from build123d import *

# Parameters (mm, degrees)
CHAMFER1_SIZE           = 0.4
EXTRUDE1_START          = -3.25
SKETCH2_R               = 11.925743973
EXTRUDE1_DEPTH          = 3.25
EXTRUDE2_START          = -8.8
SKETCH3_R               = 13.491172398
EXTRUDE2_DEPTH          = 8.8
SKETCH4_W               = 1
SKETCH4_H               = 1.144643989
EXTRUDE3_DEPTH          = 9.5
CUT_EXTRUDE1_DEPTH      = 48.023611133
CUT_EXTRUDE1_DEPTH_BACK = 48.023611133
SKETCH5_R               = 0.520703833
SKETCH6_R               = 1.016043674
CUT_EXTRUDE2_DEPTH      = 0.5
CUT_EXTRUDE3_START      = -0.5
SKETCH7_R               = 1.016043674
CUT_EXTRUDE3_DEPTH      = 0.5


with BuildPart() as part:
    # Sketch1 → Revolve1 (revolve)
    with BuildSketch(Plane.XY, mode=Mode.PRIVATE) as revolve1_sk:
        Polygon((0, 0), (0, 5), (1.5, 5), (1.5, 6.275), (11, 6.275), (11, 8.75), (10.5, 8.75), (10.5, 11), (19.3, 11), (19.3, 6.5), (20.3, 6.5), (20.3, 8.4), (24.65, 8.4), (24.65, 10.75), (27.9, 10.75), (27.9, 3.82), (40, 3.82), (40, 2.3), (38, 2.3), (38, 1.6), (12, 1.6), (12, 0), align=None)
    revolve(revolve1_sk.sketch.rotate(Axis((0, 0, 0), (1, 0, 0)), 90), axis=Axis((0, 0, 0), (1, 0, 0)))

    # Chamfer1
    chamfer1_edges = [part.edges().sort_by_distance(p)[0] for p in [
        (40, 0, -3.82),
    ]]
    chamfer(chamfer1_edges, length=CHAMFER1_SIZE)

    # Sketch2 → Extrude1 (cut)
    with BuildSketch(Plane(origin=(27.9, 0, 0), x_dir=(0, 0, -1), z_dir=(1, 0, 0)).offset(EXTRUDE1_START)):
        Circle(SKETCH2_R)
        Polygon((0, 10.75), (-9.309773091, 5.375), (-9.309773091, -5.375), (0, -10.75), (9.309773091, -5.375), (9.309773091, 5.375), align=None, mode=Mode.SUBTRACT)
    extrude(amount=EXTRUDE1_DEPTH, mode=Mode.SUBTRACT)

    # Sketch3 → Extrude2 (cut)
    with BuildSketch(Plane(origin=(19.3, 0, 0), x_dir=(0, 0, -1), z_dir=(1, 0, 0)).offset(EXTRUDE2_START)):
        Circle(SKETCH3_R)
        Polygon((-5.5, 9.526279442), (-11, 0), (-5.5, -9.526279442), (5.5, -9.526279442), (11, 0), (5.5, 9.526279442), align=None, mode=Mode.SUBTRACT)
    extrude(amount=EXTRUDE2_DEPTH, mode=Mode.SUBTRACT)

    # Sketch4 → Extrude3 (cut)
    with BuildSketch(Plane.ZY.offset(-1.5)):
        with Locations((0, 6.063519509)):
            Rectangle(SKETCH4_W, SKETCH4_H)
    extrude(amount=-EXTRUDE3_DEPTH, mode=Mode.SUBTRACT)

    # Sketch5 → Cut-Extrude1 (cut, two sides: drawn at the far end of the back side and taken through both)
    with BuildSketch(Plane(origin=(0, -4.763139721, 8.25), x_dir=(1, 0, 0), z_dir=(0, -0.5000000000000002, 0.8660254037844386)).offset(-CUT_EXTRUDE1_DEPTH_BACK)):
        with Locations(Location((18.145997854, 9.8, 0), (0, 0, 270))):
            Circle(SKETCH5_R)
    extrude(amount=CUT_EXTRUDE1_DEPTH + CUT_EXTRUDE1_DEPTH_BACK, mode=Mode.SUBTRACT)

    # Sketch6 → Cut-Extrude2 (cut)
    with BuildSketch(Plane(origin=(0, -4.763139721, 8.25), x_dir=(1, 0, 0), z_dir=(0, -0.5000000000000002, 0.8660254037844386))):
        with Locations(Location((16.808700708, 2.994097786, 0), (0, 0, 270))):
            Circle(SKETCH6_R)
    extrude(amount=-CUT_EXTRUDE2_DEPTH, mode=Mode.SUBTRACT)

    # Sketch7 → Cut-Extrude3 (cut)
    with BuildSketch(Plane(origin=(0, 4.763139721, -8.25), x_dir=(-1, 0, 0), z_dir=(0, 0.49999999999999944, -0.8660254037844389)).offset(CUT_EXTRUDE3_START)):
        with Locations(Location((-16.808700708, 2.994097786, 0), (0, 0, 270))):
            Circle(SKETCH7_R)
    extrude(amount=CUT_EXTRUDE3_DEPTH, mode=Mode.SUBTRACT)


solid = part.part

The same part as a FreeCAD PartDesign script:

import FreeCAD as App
import Part
import Sketcher
Q = App.Units.Quantity


def edges_at(feature, points):
    """Names of the edges that pass closest to the given points."""
    edges = feature.Shape.Edges
    near = lambda p: min(range(len(edges)), key=lambda i: edges[i].distToShape(Part.Vertex(*p))[0])
    return sorted({f"Edge{near(p) + 1}" for p in points})

doc = App.newDocument("Part")
params = doc.addObject("Spreadsheet::Sheet", "Params")
for row, (alias, value) in enumerate([
    ("sketch1_width", "12 mm"),
    ("sketch1_width2", "26 mm"),
    ("sketch1_width3", "2 mm"),
    ("sketch1_width4", "1 mm"),
    ("sketch1_height", "5 mm"),
    ("revolution_angle", "360 deg"),
    ("chamfer_size", "0.4 mm"),
    ("sketch2_width", "10.75 mm"),
    ("pocket1_length", "3.25 mm"),
    ("sketch3_height", "11 mm"),
    ("sketch3_length", "11 mm"),
    ("pocket2_length", "8.8 mm"),
    ("sketch4_height", "1 mm"),
    ("pocket3_length", "9.5 mm"),
    ("pocket5_length", "0.5 mm"),
    ("pocket6_length", "0.5 mm"),
], start=1):
    params.set(f"A{row}", alias)
    params.set(f"B{row}", "=" + value)
    params.setAlias(f"B{row}", alias)

body = doc.addObject("PartDesign::Body", "Body")

# Sketch on XY plane
sketch1 = body.newObject("Sketcher::SketchObject", "Sketch")
sketch1.AttachmentSupport = (doc.getObject("XY_Plane"), [""])
sketch1.MapMode = "FlatFace"
sketch1.addGeometry([
    Part.LineSegment(App.Vector(0, 5, 0), App.Vector(0, 0, 0)),  # 0
    Part.LineSegment(App.Vector(0, 0, 0), App.Vector(12, 0, 0)),  # 1
    Part.LineSegment(App.Vector(12, 0, 0), App.Vector(12, 1.6, 0)),  # 2
    Part.LineSegment(App.Vector(12, 1.6, 0), App.Vector(38, 1.6, 0)),  # 3
    Part.LineSegment(App.Vector(38, 1.6, 0), App.Vector(38, 2.3, 0)),  # 4
    Part.LineSegment(App.Vector(38, 2.3, 0), App.Vector(40, 2.3, 0)),  # 5
    Part.LineSegment(App.Vector(40, 2.3, 0), App.Vector(40, 3.8, 0)),  # 6
    Part.LineSegment(App.Vector(40, 3.8, 0), App.Vector(27.9, 3.8, 0)),  # 7
    Part.LineSegment(App.Vector(27.9, 3.8, 0), App.Vector(27.9, 10.8, 0)),  # 8
    Part.LineSegment(App.Vector(27.9, 10.8, 0), App.Vector(24.6, 10.8, 0)),  # 9
    Part.LineSegment(App.Vector(24.6, 10.8, 0), App.Vector(24.6, 8.4, 0)),  # 10
    Part.LineSegment(App.Vector(24.6, 8.4, 0), App.Vector(20.3, 8.4, 0)),  # 11
    Part.LineSegment(App.Vector(20.3, 8.4, 0), App.Vector(20.3, 6.5, 0)),  # 12
    Part.LineSegment(App.Vector(20.3, 6.5, 0), App.Vector(19.3, 6.5, 0)),  # 13
    Part.LineSegment(App.Vector(19.3, 6.5, 0), App.Vector(19.3, 11, 0)),  # 14
    Part.LineSegment(App.Vector(19.3, 11, 0), App.Vector(10.5, 11, 0)),  # 15
    Part.LineSegment(App.Vector(10.5, 11, 0), App.Vector(10.5, 8.8, 0)),  # 16
    Part.LineSegment(App.Vector(10.5, 8.8, 0), App.Vector(11, 8.8, 0)),  # 17
    Part.LineSegment(App.Vector(11, 8.8, 0), App.Vector(11, 6.3, 0)),  # 18
    Part.LineSegment(App.Vector(11, 6.3, 0), App.Vector(1.5, 6.3, 0)),  # 19
    Part.LineSegment(App.Vector(1.5, 6.3, 0), App.Vector(1.5, 5, 0)),  # 20
    Part.LineSegment(App.Vector(1.5, 5, 0), App.Vector(0, 5, 0)),  # 21
], False)
sketch1.addConstraint([
    Sketcher.Constraint("Coincident", 0, 2, 1, 1),
    Sketcher.Constraint("Coincident", 1, 2, 2, 1),
    Sketcher.Constraint("Coincident", 2, 2, 3, 1),
    Sketcher.Constraint("Coincident", 3, 2, 4, 1),
    Sketcher.Constraint("Coincident", 4, 2, 5, 1),
    Sketcher.Constraint("Coincident", 5, 2, 6, 1),
    Sketcher.Constraint("Coincident", 6, 2, 7, 1),
    Sketcher.Constraint("Coincident", 7, 2, 8, 1),
    Sketcher.Constraint("Coincident", 8, 2, 9, 1),
    Sketcher.Constraint("Coincident", 9, 2, 10, 1),
    Sketcher.Constraint("Coincident", 10, 2, 11, 1),
    Sketcher.Constraint("Coincident", 11, 2, 12, 1),
    Sketcher.Constraint("Coincident", 12, 2, 13, 1),
    Sketcher.Constraint("Coincident", 13, 2, 14, 1),
    Sketcher.Constraint("Coincident", 14, 2, 15, 1),
    Sketcher.Constraint("Coincident", 15, 2, 16, 1),
    Sketcher.Constraint("Coincident", 16, 2, 17, 1),
    Sketcher.Constraint("Coincident", 17, 2, 18, 1),
    Sketcher.Constraint("Coincident", 18, 2, 19, 1),
    Sketcher.Constraint("Coincident", 19, 2, 20, 1),
    Sketcher.Constraint("Coincident", 20, 2, 21, 1),
    Sketcher.Constraint("Coincident", 21, 2, 0, 1),
    Sketcher.Constraint("Vertical", 0),
    Sketcher.Constraint("Horizontal", 1),
    Sketcher.Constraint("Vertical", 2),
    Sketcher.Constraint("Horizontal", 3),
    Sketcher.Constraint("Vertical", 4),
    Sketcher.Constraint("Horizontal", 5),
    Sketcher.Constraint("Vertical", 6),
    Sketcher.Constraint("Horizontal", 7),
    Sketcher.Constraint("Vertical", 8),
    Sketcher.Constraint("Horizontal", 9),
    Sketcher.Constraint("Vertical", 10),
    Sketcher.Constraint("Horizontal", 11),
    Sketcher.Constraint("Vertical", 12),
    Sketcher.Constraint("Horizontal", 13),
    Sketcher.Constraint("Vertical", 14),
    Sketcher.Constraint("Horizontal", 15),
    Sketcher.Constraint("Vertical", 16),
    Sketcher.Constraint("Horizontal", 17),
    Sketcher.Constraint("Vertical", 18),
    Sketcher.Constraint("Horizontal", 19),
    Sketcher.Constraint("Vertical", 20),
    Sketcher.Constraint("Horizontal", 21),
    Sketcher.Constraint("Coincident", 0, 2, -1, 1),
    Sketcher.Constraint("DistanceX", 1, 1, 1, 2, Q("12 mm")),
    Sketcher.Constraint("DistanceX", 3, 1, 3, 2, Q("26 mm")),
    Sketcher.Constraint("DistanceX", 5, 1, 5, 2, Q("2 mm")),
    Sketcher.Constraint("DistanceX", 13, 2, 13, 1, Q("1 mm")),
    Sketcher.Constraint("DistanceY", 0, 2, 0, 1, Q("5 mm")),
    Sketcher.Constraint("DistanceX", 7, 2, 7, 1, Q("12.1 mm")),
    Sketcher.Constraint("DistanceX", 15, 2, 15, 1, Q("8.8 mm")),
    Sketcher.Constraint("DistanceX", 17, 1, 17, 2, Q("0.5 mm")),
    Sketcher.Constraint("DistanceX", 19, 2, 19, 1, Q("9.5 mm")),
    Sketcher.Constraint("DistanceX", 21, 2, 21, 1, Q("1.5 mm")),
    Sketcher.Constraint("DistanceY", 2, 1, 2, 2, Q("1.6 mm")),
    Sketcher.Constraint("DistanceY", 4, 1, 4, 2, Q("0.7 mm")),
    Sketcher.Constraint("DistanceY", 12, 2, 12, 1, Q("1.9 mm")),
    Sketcher.Constraint("DistanceY", 14, 1, 14, 2, Q("4.5 mm")),
    Sketcher.Constraint("DistanceY", -1, 1, 14, 2, Q("11 mm")),
    Sketcher.Constraint("DistanceX", 9, 2, 9, 1, Q("3.25 mm")),
    Sketcher.Constraint("DistanceY", 6, 1, 6, 2, Q("1.52 mm")),
    Sketcher.Constraint("DistanceY", 8, 1, 8, 2, Q("6.93 mm")),
    Sketcher.Constraint("DistanceY", 16, 2, 16, 1, Q("2.25 mm")),
    Sketcher.Constraint("DistanceY", 18, 2, 18, 1, Q("2.475 mm")),
])
sketch1.setExpression("Constraints[45]", "Params.sketch1_width")
sketch1.setExpression("Constraints[46]", "Params.sketch1_width2")
sketch1.setExpression("Constraints[47]", "Params.sketch1_width3")
sketch1.setExpression("Constraints[48]", "Params.sketch1_width4")
sketch1.setExpression("Constraints[49]", "Params.sketch1_height")
revolution = body.newObject("PartDesign::Revolution", "Revolution")
revolution.Profile = sketch1
revolution.ReferenceAxis = (sketch1, ["H_Axis"])
revolution.setExpression("Angle", "Params.revolution_angle")
doc.recompute()

chamfer = body.newObject("PartDesign::Chamfer", "Chamfer")
chamfer.Base = (revolution, edges_at(revolution, [(40, 0, -3.82)]))
chamfer.setExpression("Size", "Params.chamfer_size")

# Sketch on YZ plane
sketch2 = body.newObject("Sketcher::SketchObject", "Sketch001")
sketch2.AttachmentSupport = (doc.getObject("YZ_Plane"), [""])
sketch2.MapMode = "FlatFace"
sketch2.AttachmentOffset = App.Placement(App.Vector(0, 0, 24.65), App.Rotation())
sketch2.addGeometry([
    Part.Circle(App.Vector(0, 0, 0), App.Vector(0, 0, 1), 12),  # 0
    Part.LineSegment(App.Vector(5, 9, 0), App.Vector(11, 0, 0)),  # 1
    Part.LineSegment(App.Vector(11, 0, 0), App.Vector(5, -9, 0)),  # 2
    Part.LineSegment(App.Vector(5, -9, 0), App.Vector(-5, -9, 0)),  # 3
    Part.LineSegment(App.Vector(-5, -9, 0), App.Vector(-11, 0, 0)),  # 4
    Part.LineSegment(App.Vector(-11, 0, 0), App.Vector(-5, 9, 0)),  # 5
    Part.LineSegment(App.Vector(-5, 9, 0), App.Vector(5, 9, 0)),  # 6
], False)
sketch2.addConstraint([
    Sketcher.Constraint("Coincident", 1, 2, 2, 1),
    Sketcher.Constraint("Coincident", 2, 2, 3, 1),
    Sketcher.Constraint("Coincident", 3, 2, 4, 1),
    Sketcher.Constraint("Coincident", 4, 2, 5, 1),
    Sketcher.Constraint("Coincident", 5, 2, 6, 1),
    Sketcher.Constraint("Coincident", 6, 2, 1, 1),
    Sketcher.Constraint("Horizontal", 3),
    Sketcher.Constraint("Horizontal", 6),
    Sketcher.Constraint("Coincident", 0, 3, -1, 1),
    Sketcher.Constraint("Symmetric", 1, 2, 4, 2, -1, 1),
    Sketcher.Constraint("Symmetric", 2, 2, 5, 2, -1, 1),
    Sketcher.Constraint("PointOnObject", 1, 2, -1),
    Sketcher.Constraint("Parallel", 1, 4),
    Sketcher.Constraint("Vertical", 3, 2, 5, 2),
    Sketcher.Constraint("Angle", 1, Q("-60 deg")),
    Sketcher.Constraint("DistanceX", 3, 2, 3, 1, Q("10.75 mm")),
    Sketcher.Constraint("DistanceX", 4, 2, 1, 2, Q("21.5 mm")),
    Sketcher.Constraint("Diameter", 0, Q("23.851488 mm")),
])
sketch2.setExpression("Constraints[15]", "Params.sketch2_width")
pocket1 = body.newObject("PartDesign::Pocket", "Pocket")
pocket1.Profile = sketch2
pocket1.setExpression("Length", "Params.pocket1_length")
pocket1.Reversed = True

# Sketch on YZ plane
sketch3 = body.newObject("Sketcher::SketchObject", "Sketch002")
sketch3.AttachmentSupport = (doc.getObject("YZ_Plane"), [""])
sketch3.MapMode = "FlatFace"
sketch3.AttachmentOffset = App.Placement(App.Vector(0, 0, 10.5), App.Rotation())
sketch3.addGeometry([
    Part.Circle(App.Vector(0, 0, 0), App.Vector(0, 0, 1), 13),  # 0
    Part.LineSegment(App.Vector(0, 11, 0), App.Vector(10, 6, 0)),  # 1
    Part.LineSegment(App.Vector(10, 6, 0), App.Vector(10, -6, 0)),  # 2
    Part.LineSegment(App.Vector(10, -6, 0), App.Vector(0, -11, 0)),  # 3
    Part.LineSegment(App.Vector(0, -11, 0), App.Vector(-10, -6, 0)),  # 4
    Part.LineSegment(App.Vector(-10, -6, 0), App.Vector(-10, 6, 0)),  # 5
    Part.LineSegment(App.Vector(-10, 6, 0), App.Vector(0, 11, 0)),  # 6
], False)
sketch3.addConstraint([
    Sketcher.Constraint("Coincident", 1, 2, 2, 1),
    Sketcher.Constraint("Coincident", 2, 2, 3, 1),
    Sketcher.Constraint("Coincident", 3, 2, 4, 1),
    Sketcher.Constraint("Coincident", 4, 2, 5, 1),
    Sketcher.Constraint("Coincident", 5, 2, 6, 1),
    Sketcher.Constraint("Coincident", 6, 2, 1, 1),
    Sketcher.Constraint("Vertical", 2),
    Sketcher.Constraint("Vertical", 5),
    Sketcher.Constraint("Coincident", 0, 3, -1, 1),
    Sketcher.Constraint("Symmetric", 1, 2, 4, 2, -1, 1),
    Sketcher.Constraint("Symmetric", 3, 2, 6, 2, -1, 1),
    Sketcher.Constraint("PointOnObject", 3, 2, -2),
    Sketcher.Constraint("Parallel", 3, 6),
    Sketcher.Constraint("Horizontal", 2, 2, 4, 2),
    Sketcher.Constraint("DistanceY", 2, 2, 2, 1, Q("11 mm")),
    Sketcher.Constraint("Angle", 1, Q("-30 deg")),
    Sketcher.Constraint("Distance", 1, Q("11 mm")),
    Sketcher.Constraint("Diameter", 0, Q("26.982345 mm")),
])
sketch3.setExpression("Constraints[14]", "Params.sketch3_height")
sketch3.setExpression("Constraints[16]", "Params.sketch3_length")
pocket2 = body.newObject("PartDesign::Pocket", "Pocket001")
pocket2.Profile = sketch3
pocket2.setExpression("Length", "Params.pocket2_length")
pocket2.Reversed = True

# Sketch on YZ plane
sketch4 = body.newObject("Sketcher::SketchObject", "Sketch003")
sketch4.AttachmentSupport = (doc.getObject("YZ_Plane"), [""])
sketch4.MapMode = "FlatFace"
sketch4.AttachmentOffset = App.Placement(App.Vector(0, 0, 1.5), App.Rotation())
sketch4.addGeometry([
    Part.LineSegment(App.Vector(6.6, -0.5, 0), App.Vector(5.5, -0.5, 0)),
    Part.LineSegment(App.Vector(5.5, -0.5, 0), App.Vector(5.5, 0.5, 0)),
    Part.LineSegment(App.Vector(5.5, 0.5, 0), App.Vector(6.6, 0.5, 0)),
    Part.LineSegment(App.Vector(6.6, 0.5, 0), App.Vector(6.6, -0.5, 0)),
], False)
sketch4.addConstraint([
    Sketcher.Constraint("Coincident", 0, 2, 1, 1),
    Sketcher.Constraint("Coincident", 1, 2, 2, 1),
    Sketcher.Constraint("Coincident", 2, 2, 3, 1),
    Sketcher.Constraint("Coincident", 3, 2, 0, 1),
    Sketcher.Constraint("Horizontal", 0),
    Sketcher.Constraint("Vertical", 1),
    Sketcher.Constraint("Horizontal", 2),
    Sketcher.Constraint("Vertical", 3),
    Sketcher.Constraint("DistanceY", 1, 1, 1, 2, Q("1 mm")),
    Sketcher.Constraint("DistanceY", 0, 2, -1, 1, Q("0.5 mm")),
    Sketcher.Constraint("DistanceX", 0, 2, 0, 1, Q("1.144644 mm")),
    Sketcher.Constraint("DistanceX", -1, 1, 2, 2, Q("6.635842 mm")),
])
sketch4.setExpression("Constraints[8]", "Params.sketch4_height")
pocket3 = body.newObject("PartDesign::Pocket", "Pocket002")
pocket3.Profile = sketch4
pocket3.setExpression("Length", "Params.pocket3_length")
pocket3.Reversed = True

# Sketch on an angled plane
sketch5 = body.newObject("Sketcher::SketchObject", "Sketch004")
sketch5.Placement = App.Placement(App.Vector(0, -4.76314, 8.25), App.Rotation(App.Vector(1, 0, 0), App.Vector(0, 0.866025404, 0.5), App.Vector(0, -0.5, 0.866025404), "ZXY"))
sketch5.addGeometry(Part.Circle(App.Vector(18.1, 9.8, 0), App.Vector(0, 0, 1), 0.5), False)
sketch5.addConstraint([
    Sketcher.Constraint("DistanceY", -1, 1, 0, 3, Q("9.8 mm")),
    Sketcher.Constraint("Diameter", 0, Q("1.041408 mm")),
    Sketcher.Constraint("DistanceX", -1, 1, 0, 3, Q("18.145998 mm")),
])
pocket4 = body.newObject("PartDesign::Pocket", "Pocket003")
pocket4.Profile = sketch5
pocket4.Type = "ThroughAll"
pocket4.Midplane = True

# Sketch on an angled plane
sketch6 = body.newObject("Sketcher::SketchObject", "Sketch005")
sketch6.Placement = App.Placement(App.Vector(0, -4.76314, 8.25), App.Rotation(App.Vector(1, 0, 0), App.Vector(0, 0.866025404, 0.5), App.Vector(0, -0.5, 0.866025404), "ZXY"))
sketch6.addGeometry(Part.Circle(App.Vector(16.8, 3, 0), App.Vector(0, 0, 1), 1), False)
sketch6.addConstraint([
    Sketcher.Constraint("Diameter", 0, Q("2.032087 mm")),
    Sketcher.Constraint("DistanceX", -1, 1, 0, 3, Q("16.808701 mm")),
    Sketcher.Constraint("DistanceY", -1, 1, 0, 3, Q("2.994098 mm")),
])
pocket5 = body.newObject("PartDesign::Pocket", "Pocket004")
pocket5.Profile = sketch6
pocket5.setExpression("Length", "Params.pocket5_length")

# Sketch on an angled plane
sketch7 = body.newObject("Sketcher::SketchObject", "Sketch006")
sketch7.Placement = App.Placement(App.Vector(0, 4.51314, -7.816987), App.Rotation(App.Vector(-1, 0, 0), App.Vector(0, 0.866025404, 0.5), App.Vector(0, 0.5, -0.866025404), "ZXY"))
sketch7.addGeometry(Part.Circle(App.Vector(-16.8, 3, 0), App.Vector(0, 0, 1), 1), False)
sketch7.addConstraint([
    Sketcher.Constraint("Diameter", 0, Q("2.032087 mm")),
    Sketcher.Constraint("DistanceX", 0, 3, -1, 1, Q("16.808701 mm")),
    Sketcher.Constraint("DistanceY", -1, 1, 0, 3, Q("2.994098 mm")),
])
pocket6 = body.newObject("PartDesign::Pocket", "Pocket005")
pocket6.Profile = sketch7
pocket6.setExpression("Length", "Params.pocket6_length")
pocket6.Reversed = True

doc.recompute()
